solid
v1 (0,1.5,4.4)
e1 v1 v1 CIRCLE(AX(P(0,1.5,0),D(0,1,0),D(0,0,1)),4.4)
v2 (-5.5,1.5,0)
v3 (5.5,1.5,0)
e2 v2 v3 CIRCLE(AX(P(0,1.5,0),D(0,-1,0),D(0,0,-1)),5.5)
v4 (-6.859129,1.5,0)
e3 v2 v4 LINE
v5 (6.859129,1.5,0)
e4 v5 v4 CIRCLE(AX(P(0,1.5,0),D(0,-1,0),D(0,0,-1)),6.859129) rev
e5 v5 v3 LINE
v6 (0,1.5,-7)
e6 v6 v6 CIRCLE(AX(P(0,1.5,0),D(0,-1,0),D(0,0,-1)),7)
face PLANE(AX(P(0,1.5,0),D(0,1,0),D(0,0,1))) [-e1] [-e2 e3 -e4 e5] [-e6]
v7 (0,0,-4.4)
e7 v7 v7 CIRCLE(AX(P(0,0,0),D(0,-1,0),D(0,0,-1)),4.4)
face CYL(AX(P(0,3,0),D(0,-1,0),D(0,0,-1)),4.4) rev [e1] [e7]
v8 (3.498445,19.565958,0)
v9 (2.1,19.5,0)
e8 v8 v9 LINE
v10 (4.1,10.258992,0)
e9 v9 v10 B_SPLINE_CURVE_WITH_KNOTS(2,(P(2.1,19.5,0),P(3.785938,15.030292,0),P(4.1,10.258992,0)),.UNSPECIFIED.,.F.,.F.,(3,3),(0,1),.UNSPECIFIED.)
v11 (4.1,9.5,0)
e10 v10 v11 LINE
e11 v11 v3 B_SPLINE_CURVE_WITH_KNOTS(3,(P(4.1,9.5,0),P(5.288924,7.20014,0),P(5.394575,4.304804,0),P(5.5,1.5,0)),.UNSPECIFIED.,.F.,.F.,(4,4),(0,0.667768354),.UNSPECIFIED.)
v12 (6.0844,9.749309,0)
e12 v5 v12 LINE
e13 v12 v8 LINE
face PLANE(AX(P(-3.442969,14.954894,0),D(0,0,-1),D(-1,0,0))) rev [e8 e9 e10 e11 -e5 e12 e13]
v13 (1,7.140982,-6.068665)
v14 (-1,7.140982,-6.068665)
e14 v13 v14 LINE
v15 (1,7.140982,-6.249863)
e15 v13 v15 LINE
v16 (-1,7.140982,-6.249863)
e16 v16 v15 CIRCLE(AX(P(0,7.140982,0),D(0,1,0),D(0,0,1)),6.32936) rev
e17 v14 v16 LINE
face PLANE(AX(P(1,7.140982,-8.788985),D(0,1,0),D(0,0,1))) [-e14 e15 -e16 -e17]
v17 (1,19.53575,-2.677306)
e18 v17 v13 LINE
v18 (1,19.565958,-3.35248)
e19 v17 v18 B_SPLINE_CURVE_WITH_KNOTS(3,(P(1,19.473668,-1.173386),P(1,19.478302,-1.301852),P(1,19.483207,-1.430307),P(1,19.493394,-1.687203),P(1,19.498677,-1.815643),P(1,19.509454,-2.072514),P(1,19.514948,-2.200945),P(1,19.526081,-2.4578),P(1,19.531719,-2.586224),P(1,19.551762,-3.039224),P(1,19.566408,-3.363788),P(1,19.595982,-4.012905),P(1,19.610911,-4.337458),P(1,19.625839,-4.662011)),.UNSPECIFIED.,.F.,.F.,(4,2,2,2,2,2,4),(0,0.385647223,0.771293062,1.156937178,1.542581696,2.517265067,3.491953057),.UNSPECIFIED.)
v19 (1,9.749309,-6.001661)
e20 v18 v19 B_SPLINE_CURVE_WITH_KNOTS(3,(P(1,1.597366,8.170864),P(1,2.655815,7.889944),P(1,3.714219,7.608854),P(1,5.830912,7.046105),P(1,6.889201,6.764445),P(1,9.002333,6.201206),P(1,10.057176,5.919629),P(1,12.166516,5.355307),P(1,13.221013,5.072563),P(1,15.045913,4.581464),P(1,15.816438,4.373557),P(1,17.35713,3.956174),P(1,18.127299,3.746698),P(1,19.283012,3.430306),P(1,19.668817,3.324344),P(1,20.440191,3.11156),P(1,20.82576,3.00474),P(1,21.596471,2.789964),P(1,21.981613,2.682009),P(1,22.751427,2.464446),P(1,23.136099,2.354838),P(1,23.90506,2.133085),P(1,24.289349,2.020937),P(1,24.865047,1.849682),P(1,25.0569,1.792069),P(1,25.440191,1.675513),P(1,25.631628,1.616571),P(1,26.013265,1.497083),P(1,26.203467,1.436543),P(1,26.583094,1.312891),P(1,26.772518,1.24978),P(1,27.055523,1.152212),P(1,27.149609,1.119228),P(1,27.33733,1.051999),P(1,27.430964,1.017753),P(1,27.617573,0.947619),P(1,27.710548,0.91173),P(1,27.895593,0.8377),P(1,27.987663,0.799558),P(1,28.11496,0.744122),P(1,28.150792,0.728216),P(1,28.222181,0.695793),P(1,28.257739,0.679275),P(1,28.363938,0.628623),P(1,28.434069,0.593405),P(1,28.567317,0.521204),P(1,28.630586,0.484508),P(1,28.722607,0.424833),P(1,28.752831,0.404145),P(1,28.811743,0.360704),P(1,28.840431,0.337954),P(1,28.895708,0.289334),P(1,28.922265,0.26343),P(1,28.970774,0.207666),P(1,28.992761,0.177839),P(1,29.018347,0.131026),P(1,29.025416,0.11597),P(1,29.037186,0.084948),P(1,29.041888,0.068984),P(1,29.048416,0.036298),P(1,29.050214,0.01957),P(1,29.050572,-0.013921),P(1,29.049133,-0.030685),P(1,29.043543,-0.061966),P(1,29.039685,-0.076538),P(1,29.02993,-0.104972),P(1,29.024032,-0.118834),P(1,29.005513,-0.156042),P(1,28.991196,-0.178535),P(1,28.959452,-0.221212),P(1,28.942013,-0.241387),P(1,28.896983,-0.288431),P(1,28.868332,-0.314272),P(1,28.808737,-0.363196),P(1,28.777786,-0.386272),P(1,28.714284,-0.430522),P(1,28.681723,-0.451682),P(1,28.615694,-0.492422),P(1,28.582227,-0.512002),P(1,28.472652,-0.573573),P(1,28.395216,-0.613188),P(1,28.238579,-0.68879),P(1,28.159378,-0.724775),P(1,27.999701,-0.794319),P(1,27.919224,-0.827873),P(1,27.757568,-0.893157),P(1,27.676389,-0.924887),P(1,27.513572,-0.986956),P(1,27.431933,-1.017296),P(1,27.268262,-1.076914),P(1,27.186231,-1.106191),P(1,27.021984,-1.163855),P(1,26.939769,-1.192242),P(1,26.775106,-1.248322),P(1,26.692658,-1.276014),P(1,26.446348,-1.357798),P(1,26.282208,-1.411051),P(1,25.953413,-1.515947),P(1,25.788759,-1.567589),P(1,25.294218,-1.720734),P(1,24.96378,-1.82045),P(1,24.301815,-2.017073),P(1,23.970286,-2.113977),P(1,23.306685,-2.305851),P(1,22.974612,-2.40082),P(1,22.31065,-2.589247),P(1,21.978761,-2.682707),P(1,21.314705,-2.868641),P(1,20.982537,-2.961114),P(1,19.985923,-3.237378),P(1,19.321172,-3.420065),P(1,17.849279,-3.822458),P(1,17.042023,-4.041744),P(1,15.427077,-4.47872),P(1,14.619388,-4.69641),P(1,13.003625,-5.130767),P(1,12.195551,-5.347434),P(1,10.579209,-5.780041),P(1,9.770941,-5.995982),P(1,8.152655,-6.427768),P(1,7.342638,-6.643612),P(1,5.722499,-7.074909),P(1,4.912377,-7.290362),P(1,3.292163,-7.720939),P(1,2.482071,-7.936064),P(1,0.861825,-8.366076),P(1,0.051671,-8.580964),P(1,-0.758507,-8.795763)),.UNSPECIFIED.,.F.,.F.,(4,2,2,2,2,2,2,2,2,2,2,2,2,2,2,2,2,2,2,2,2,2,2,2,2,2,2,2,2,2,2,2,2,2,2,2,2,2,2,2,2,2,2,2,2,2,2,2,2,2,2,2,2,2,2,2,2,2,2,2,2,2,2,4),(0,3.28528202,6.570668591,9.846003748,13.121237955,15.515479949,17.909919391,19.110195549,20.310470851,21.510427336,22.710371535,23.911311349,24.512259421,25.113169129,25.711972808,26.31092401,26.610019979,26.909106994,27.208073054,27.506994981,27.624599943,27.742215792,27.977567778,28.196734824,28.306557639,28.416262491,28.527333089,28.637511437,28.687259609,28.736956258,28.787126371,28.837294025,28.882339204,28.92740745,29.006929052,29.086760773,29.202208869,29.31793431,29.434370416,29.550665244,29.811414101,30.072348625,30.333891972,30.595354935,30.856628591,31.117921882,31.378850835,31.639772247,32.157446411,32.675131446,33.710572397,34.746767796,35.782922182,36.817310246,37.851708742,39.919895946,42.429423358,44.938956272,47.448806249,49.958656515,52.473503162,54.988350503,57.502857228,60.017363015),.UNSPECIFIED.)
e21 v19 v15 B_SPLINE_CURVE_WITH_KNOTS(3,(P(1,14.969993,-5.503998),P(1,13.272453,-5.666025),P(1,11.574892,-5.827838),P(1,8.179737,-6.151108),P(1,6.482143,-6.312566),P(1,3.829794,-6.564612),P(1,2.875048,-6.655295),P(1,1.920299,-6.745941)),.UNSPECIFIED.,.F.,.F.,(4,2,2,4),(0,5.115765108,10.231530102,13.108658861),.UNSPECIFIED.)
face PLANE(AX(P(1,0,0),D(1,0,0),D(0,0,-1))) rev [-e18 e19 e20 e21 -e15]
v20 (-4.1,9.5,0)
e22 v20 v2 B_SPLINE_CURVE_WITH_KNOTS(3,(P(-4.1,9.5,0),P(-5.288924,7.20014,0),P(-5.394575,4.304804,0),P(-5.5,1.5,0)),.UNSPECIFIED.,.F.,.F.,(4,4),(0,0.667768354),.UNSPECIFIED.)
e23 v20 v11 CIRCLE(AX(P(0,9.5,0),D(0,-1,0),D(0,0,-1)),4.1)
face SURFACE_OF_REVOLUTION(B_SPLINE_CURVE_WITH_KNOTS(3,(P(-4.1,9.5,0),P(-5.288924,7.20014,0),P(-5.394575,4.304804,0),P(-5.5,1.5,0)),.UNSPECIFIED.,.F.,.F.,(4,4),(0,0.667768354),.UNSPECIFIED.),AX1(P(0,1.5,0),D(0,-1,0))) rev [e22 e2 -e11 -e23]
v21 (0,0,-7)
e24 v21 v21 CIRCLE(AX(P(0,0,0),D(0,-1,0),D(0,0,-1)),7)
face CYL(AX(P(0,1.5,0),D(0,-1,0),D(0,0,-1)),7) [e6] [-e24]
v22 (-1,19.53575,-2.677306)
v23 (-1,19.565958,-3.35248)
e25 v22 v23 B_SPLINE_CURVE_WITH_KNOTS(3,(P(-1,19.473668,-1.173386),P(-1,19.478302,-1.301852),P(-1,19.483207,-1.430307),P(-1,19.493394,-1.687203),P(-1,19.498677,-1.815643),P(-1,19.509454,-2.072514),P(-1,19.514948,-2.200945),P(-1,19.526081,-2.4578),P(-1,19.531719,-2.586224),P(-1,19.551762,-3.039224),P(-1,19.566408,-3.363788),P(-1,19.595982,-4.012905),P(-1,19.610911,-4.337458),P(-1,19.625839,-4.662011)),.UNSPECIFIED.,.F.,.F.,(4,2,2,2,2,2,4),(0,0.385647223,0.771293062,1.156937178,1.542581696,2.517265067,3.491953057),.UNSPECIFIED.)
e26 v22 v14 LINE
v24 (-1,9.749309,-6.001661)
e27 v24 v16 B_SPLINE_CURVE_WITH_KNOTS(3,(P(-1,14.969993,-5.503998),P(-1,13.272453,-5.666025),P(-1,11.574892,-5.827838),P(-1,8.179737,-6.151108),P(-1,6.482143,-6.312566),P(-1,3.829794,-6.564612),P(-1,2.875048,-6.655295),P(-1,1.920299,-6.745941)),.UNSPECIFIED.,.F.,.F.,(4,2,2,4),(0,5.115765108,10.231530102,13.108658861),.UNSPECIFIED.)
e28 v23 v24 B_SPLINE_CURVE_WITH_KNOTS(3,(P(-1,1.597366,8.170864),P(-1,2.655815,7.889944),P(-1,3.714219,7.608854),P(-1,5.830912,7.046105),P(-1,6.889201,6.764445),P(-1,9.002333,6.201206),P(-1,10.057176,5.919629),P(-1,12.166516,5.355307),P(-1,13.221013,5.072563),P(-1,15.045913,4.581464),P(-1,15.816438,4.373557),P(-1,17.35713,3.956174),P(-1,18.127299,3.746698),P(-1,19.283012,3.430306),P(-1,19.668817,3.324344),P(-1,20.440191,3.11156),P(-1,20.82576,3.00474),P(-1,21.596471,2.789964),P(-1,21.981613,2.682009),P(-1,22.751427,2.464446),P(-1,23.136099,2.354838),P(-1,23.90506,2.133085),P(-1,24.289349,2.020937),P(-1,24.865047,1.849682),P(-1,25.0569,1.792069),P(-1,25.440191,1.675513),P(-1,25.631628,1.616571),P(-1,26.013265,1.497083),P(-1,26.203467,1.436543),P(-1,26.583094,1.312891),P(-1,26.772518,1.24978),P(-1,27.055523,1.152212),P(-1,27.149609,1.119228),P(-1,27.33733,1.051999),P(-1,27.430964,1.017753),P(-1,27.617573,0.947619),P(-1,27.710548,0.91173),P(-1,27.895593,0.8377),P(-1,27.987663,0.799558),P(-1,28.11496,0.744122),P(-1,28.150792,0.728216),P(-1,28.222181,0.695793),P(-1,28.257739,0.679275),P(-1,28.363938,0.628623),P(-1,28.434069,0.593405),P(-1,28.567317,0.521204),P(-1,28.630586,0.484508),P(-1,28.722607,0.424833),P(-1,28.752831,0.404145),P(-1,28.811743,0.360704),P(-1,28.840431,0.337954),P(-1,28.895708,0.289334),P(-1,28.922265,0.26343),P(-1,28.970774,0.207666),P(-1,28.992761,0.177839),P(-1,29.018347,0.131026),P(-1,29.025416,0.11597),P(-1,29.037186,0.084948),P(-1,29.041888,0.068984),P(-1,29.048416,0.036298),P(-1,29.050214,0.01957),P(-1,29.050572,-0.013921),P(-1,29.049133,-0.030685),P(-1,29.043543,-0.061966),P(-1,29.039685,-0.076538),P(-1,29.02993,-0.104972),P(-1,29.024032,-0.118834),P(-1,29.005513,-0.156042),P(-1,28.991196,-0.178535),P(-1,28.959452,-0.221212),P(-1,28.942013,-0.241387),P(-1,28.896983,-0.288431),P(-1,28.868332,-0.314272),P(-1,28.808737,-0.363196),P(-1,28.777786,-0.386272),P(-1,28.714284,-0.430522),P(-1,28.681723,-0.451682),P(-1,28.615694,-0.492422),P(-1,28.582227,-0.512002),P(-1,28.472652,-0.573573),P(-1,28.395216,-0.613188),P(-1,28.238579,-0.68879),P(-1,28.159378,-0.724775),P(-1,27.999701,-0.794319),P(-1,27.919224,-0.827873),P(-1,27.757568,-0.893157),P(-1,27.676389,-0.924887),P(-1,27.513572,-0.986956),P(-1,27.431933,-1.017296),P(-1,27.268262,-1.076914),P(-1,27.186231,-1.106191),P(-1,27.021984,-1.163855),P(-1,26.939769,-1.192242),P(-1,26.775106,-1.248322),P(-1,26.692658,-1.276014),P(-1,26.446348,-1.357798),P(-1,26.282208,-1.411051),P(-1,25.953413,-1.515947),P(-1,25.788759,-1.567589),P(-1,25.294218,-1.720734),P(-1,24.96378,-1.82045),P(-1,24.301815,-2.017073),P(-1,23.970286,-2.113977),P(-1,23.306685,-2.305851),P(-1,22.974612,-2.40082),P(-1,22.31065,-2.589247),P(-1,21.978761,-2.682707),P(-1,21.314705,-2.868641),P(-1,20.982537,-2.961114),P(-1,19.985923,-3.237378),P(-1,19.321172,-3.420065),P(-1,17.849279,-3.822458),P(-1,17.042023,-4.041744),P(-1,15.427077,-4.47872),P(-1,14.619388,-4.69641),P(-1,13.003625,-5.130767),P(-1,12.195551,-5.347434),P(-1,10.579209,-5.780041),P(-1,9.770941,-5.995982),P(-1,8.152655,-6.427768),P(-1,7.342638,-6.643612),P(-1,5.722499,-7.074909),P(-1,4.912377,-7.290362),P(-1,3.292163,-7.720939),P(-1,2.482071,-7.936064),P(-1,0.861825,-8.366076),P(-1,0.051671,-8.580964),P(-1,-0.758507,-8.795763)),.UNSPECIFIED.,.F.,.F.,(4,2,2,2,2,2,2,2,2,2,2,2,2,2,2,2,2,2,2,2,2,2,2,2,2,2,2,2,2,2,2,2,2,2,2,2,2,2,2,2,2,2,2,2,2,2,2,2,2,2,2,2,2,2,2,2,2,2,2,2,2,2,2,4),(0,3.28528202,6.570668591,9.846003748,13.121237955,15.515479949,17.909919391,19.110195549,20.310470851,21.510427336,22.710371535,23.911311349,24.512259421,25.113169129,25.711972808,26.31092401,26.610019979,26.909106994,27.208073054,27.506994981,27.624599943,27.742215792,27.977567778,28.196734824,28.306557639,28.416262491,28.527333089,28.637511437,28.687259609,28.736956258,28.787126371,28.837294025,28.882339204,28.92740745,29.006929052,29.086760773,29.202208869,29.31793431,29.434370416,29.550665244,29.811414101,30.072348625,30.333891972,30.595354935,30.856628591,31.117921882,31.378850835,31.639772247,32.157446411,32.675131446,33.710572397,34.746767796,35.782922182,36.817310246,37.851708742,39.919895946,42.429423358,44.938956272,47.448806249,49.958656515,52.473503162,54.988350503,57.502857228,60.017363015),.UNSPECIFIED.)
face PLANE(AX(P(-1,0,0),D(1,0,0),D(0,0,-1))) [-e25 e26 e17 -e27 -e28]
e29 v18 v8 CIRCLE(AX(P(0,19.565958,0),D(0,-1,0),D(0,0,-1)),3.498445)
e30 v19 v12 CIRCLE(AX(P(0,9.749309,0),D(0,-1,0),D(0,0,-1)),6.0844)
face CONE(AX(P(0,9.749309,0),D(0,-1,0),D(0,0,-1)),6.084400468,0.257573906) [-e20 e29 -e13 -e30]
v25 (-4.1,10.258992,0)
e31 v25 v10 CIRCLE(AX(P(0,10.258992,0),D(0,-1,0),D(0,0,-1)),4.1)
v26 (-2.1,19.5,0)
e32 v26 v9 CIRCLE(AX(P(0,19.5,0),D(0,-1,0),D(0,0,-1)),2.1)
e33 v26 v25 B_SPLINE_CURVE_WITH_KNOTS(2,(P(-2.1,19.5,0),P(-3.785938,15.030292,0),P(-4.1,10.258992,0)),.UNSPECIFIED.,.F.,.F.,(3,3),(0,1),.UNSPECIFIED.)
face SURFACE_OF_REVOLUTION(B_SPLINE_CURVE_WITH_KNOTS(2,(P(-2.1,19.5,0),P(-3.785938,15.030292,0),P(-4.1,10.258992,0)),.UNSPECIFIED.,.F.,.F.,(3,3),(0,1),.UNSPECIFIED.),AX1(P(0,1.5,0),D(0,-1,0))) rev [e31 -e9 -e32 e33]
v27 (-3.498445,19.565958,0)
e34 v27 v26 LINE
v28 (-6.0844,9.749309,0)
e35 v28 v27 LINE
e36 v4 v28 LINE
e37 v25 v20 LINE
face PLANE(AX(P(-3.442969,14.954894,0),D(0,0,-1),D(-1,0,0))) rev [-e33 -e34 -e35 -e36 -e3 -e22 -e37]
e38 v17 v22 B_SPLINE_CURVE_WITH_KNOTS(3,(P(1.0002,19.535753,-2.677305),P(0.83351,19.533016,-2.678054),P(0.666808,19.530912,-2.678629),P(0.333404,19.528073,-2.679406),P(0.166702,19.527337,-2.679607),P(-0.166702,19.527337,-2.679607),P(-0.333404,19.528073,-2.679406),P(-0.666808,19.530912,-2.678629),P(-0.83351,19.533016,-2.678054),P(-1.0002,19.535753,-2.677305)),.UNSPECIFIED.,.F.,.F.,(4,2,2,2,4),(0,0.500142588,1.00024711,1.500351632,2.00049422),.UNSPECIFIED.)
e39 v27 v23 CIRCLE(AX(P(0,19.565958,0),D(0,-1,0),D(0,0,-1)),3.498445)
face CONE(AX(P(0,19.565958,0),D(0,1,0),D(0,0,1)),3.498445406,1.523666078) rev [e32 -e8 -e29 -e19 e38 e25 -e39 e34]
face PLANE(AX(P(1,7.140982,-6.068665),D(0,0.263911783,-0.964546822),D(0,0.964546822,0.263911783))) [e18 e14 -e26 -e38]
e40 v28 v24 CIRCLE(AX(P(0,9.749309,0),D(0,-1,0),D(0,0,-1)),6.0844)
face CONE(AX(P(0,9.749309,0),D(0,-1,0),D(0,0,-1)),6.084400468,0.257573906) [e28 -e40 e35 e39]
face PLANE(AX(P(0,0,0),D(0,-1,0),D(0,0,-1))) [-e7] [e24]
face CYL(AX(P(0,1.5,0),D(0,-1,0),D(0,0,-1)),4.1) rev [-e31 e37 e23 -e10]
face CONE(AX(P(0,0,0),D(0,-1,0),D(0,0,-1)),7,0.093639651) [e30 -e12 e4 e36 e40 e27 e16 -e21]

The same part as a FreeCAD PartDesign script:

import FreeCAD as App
import Part
import Sketcher
from FreeCAD import Vector
Q = App.Units.Quantity


def add_polygon(sketch, points):
    """Adds a closed chain of lines whose ends are joined by coincident constraints."""
    first, n = sketch.GeometryCount, len(points)
    for a, b in zip(points, points[1:] + points[:1]):
        sketch.addGeometry(Part.LineSegment(App.Vector(*a, 0), App.Vector(*b, 0)), False)
    for i in range(n):
        sketch.addConstraint(Sketcher.Constraint("Coincident", first + i, 2, first + (i + 1) % n, 1))

doc = App.newDocument("Part")
body = doc.addObject("PartDesign::Body", "Body")

sketch1 = body.newObject("Sketcher::SketchObject", "Sketch")
sketch1.AttachmentSupport = (doc.getObject("XY_Plane"), [""])
sketch1.MapMode = "FlatFace"
sketch1.addGeometry(Part.LineSegment(Vector(0, 1.5, 0), Vector(0, 0, 0)), False)
sketch1.addGeometry(Part.LineSegment(Vector(0, 0, 0), Vector(7, 0, 0)), False)
sketch1.addGeometry(Part.LineSegment(Vector(7, 0, 0), Vector(6.0844, 9.749309, 0)), False)
sketch1.addGeometry(Part.LineSegment(Vector(6.0844, 9.749309, 0), Vector(3.498445, 19.565958, 0)), False)
sketch1.addGeometry(Part.LineSegment(Vector(3.498445, 19.565958, 0), Vector(2.1, 19.5, 0)), False)
sketch1.addGeometry(Part.BSplineCurve([Vector(2.1, 19.5, 0), Vector(3.785938, 15.030292, 0), Vector(4.1, 10.258992, 0)], [3, 3], [0, 1], False, 2, [1, 1, 1], False), False)
sketch1.addGeometry(Part.LineSegment(Vector(4.1, 10.258992, 0), Vector(4.1, 9.5, 0)), False)
sketch1.addGeometry(Part.BSplineCurve([Vector(4.1, 9.5, 0), Vector(5.288924, 7.20014, 0), Vector(5.394575, 4.304804, 0), Vector(5.5, 1.5, 0)], [4, 4], [0, 0.667768354], False, 3, [1, 1, 1, 1], False), False)
sketch1.addGeometry(Part.LineSegment(Vector(5.5, 1.5, 0), Vector(0, 1.5, 0)), False)
sketch1.addConstraint(Sketcher.Constraint("Block", 5))
sketch1.addConstraint(Sketcher.Constraint("Block", 7))
sketch1.addConstraint(Sketcher.Constraint("Coincident", 0, 2, 1, 1))
sketch1.addConstraint(Sketcher.Constraint("Coincident", 1, 2, 2, 1))
sketch1.addConstraint(Sketcher.Constraint("Coincident", 2, 2, 3, 1))
sketch1.addConstraint(Sketcher.Constraint("Coincident", 3, 2, 4, 1))
sketch1.addConstraint(Sketcher.Constraint("Coincident", 4, 2, 5, 1))
sketch1.addConstraint(Sketcher.Constraint("Coincident", 5, 2, 6, 1))
sketch1.addConstraint(Sketcher.Constraint("Coincident", 6, 2, 7, 1))
sketch1.addConstraint(Sketcher.Constraint("Coincident", 7, 2, 8, 1))
sketch1.addConstraint(Sketcher.Constraint("Coincident", 8, 2, 0, 1))
sketch1.addConstraint(Sketcher.Constraint("Vertical", 0))
sketch1.addConstraint(Sketcher.Constraint("Horizontal", 1))
sketch1.addConstraint(Sketcher.Constraint("Horizontal", 8))
sketch1.addConstraint(Sketcher.Constraint("Coincident", 0, 2, -1, 1))
sketch1.addConstraint(Sketcher.Constraint("DistanceX", 1, 1, 1, 2, Q("7 mm")))
sketch1.addConstraint(Sketcher.Constraint("Distance", 4, Q("1.4 mm")))
sketch1.addConstraint(Sketcher.Constraint("DistanceX", -1, 1, 2, 2, Q("6.0844 mm")))
sketch1.addConstraint(Sketcher.Constraint("Distance", 2, Q("9.792208 mm")))
sketch1.addConstraint(Sketcher.Constraint("Distance", 3, Q("10.15154 mm")))
revolution = body.newObject("PartDesign::Revolution", "Revolution")
revolution.Profile = sketch1
revolution.ReferenceAxis = (sketch1, ["V_Axis"])
revolution.Angle = 180

sketch2 = body.newObject("Sketcher::SketchObject", "Sketch001")
sketch2.AttachmentSupport = (doc.getObject("XZ_Plane"), [""])
sketch2.MapMode = "FlatFace"
sketch2.addGeometry(Part.Circle(Vector(0, 0, 0), Vector(0, 0, 1), 7), False)
sketch2.addConstraint(Sketcher.Constraint("Coincident", 0, 3, -1, 1))
sketch2.addConstraint(Sketcher.Constraint("Diameter", 0, Q("14 mm")))
pad1 = body.newObject("PartDesign::Pad", "Pad")
pad1.Profile = sketch2
pad1.Length = 1.5
pad1.Reversed = True

sketch3 = body.newObject("Sketcher::SketchObject", "Sketch002")
sketch3.AttachmentSupport = (doc.getObject("XZ_Plane"), [""])
sketch3.MapMode = "FlatFace"
sketch3.addGeometry(Part.Circle(Vector(0, 0, 0), Vector(0, 0, 1), 4.4), False)
sketch3.addConstraint(Sketcher.Constraint("Coincident", 0, 3, -1, 1))
sketch3.addConstraint(Sketcher.Constraint("Diameter", 0, Q("8.8 mm")))
pocket1 = body.newObject("PartDesign::Pocket", "Pocket")
pocket1.Profile = sketch3
pocket1.Length = 3

sketch4 = body.newObject("Sketcher::SketchObject", "Sketch003")
sketch4.AttachmentSupport = (doc.getObject("YZ_Plane"), [""])
sketch4.MapMode = "FlatFace"
add_polygon(sketch4, [(7.1, -6.1), (7.1, -8.8), (19.6, -4.9), (19.6, -3.5), (20.8, -2.3)])
sketch4.addConstraint(Sketcher.Constraint("Vertical", 0))
sketch4.addConstraint(Sketcher.Constraint("Vertical", 2))
sketch4.addConstraint(Sketcher.Constraint("DistanceY", 0, 2, 0, 1, Q("2.720319 mm")))
sketch4.addConstraint(Sketcher.Constraint("DistanceY", 1, 2, 3, 2, Q("2.561701 mm")))
sketch4.addConstraint(Sketcher.Constraint("Distance", 1, Q("13.019781 mm")))
sketch4.addConstraint(Sketcher.Constraint("DistanceY", 2, 1, 2, 2, Q("1.400207 mm")))
sketch4.addConstraint(Sketcher.Constraint("DistanceX", -1, 1, 3, 2, Q("20.77968 mm")))
sketch4.addConstraint(Sketcher.Constraint("DistanceY", 3, 2, -1, 1, Q("2.336951 mm")))
sketch4.addConstraint(Sketcher.Constraint("DistanceY", 0, 2, 2, 2, Q("5.290539 mm")))
sketch4.addConstraint(Sketcher.Constraint("DistanceX", 2, 2, 3, 2, Q("1.213722 mm")))
pocket2 = body.newObject("PartDesign::Pocket", "Pocket001")
pocket2.Profile = sketch4
pocket2.Type = "TwoLengths"
pocket2.Length = 1
pocket2.Length2 = 1
pocket2.Reversed = True

doc.recompute()
